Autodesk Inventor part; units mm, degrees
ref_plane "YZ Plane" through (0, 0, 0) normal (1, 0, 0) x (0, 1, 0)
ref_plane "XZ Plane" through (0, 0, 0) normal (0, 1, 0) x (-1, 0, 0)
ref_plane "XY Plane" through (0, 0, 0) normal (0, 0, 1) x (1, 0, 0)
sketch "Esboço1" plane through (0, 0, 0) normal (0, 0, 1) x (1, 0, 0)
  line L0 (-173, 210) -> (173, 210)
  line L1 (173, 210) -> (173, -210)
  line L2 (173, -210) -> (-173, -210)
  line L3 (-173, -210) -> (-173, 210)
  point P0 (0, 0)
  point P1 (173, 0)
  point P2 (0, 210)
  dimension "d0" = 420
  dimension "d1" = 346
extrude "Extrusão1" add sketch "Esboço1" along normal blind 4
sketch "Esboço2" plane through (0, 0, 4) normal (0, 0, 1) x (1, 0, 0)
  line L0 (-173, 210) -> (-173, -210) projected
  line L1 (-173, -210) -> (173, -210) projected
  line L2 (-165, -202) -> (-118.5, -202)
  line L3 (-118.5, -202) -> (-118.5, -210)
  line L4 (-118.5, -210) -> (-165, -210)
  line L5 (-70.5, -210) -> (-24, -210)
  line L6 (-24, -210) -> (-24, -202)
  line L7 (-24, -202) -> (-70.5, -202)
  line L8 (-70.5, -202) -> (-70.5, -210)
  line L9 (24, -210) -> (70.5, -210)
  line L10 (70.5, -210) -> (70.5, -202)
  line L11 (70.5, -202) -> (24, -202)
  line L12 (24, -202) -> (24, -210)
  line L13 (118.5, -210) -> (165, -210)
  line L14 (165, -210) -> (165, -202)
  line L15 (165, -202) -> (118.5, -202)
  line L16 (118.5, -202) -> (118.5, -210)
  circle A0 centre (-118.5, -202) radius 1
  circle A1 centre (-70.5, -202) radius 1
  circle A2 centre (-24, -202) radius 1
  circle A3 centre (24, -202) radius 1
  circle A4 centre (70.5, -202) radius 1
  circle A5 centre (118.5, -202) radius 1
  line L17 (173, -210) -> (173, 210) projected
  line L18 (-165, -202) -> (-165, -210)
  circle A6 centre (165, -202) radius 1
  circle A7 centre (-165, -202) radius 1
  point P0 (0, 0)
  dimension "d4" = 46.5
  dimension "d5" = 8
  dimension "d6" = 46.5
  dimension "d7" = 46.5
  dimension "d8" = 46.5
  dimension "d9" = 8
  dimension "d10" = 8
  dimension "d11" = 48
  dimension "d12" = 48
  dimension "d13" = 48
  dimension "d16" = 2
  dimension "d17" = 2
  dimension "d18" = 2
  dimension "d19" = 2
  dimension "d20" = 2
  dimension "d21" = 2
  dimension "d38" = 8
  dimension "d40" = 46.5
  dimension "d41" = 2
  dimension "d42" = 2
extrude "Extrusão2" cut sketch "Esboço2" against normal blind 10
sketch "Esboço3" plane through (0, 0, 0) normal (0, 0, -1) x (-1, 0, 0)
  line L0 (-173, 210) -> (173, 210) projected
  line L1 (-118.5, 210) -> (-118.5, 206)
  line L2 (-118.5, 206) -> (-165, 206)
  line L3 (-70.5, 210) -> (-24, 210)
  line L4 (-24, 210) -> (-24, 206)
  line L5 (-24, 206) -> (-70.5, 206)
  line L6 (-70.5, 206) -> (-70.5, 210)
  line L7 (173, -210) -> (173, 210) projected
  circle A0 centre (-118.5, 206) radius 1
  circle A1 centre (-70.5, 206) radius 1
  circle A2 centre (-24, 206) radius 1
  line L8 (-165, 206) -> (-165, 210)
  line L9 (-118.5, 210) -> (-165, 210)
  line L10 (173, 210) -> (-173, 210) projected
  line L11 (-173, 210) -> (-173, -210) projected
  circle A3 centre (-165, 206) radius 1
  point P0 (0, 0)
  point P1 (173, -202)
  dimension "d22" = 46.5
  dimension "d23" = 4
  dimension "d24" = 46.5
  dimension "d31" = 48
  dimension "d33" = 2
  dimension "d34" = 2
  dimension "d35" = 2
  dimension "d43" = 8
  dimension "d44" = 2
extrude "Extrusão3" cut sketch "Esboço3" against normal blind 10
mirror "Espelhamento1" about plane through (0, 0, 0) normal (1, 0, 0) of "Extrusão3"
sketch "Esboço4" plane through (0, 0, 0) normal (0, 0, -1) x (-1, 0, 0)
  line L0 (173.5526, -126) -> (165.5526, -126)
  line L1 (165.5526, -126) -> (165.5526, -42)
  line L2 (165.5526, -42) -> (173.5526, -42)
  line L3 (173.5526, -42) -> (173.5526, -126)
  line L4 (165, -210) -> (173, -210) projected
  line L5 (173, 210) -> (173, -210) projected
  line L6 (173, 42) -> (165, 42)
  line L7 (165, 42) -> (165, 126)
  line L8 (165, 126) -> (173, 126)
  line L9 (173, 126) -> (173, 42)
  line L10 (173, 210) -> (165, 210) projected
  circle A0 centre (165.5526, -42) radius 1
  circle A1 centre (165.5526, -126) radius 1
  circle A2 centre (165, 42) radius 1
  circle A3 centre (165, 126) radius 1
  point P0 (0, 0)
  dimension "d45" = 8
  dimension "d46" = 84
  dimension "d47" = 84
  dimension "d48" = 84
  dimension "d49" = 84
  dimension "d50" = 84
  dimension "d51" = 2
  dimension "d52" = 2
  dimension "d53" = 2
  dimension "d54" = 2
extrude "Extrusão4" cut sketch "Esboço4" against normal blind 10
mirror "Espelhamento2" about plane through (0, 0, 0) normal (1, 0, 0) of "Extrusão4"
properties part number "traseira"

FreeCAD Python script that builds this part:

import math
import FreeCAD as App
import Part
import Sketcher
from FreeCAD import Vector
Q = App.Units.Quantity

doc = App.newDocument("Part")
body = doc.addObject("PartDesign::Body", "Body")

# Sketch on XY plane
sketch1 = doc.addObject("Sketcher::SketchObject", "Sketch")
body.addObject(sketch1)
sketch1.AttachmentSupport = (doc.XY_Plane, [""])
sketch1.MapMode = "FlatFace"
sketch1.addGeometry(Part.LineSegment(Vector(173, 210, 0), Vector(-173, 210, 0)), False)
sketch1.addGeometry(Part.LineSegment(Vector(-173, 210, 0), Vector(-173, -210, 0)), False)
sketch1.addGeometry(Part.LineSegment(Vector(-173, -210, 0), Vector(173, -210, 0)), False)
sketch1.addGeometry(Part.LineSegment(Vector(173, -210, 0), Vector(173, 210, 0)), False)
sketch1.addConstraint(Sketcher.Constraint("Coincident", 0, 2, 1, 1))
sketch1.addConstraint(Sketcher.Constraint("Coincident", 1, 2, 2, 1))
sketch1.addConstraint(Sketcher.Constraint("Coincident", 2, 2, 3, 1))
sketch1.addConstraint(Sketcher.Constraint("Coincident", 3, 2, 0, 1))
sketch1.addConstraint(Sketcher.Constraint("Horizontal", 0))
sketch1.addConstraint(Sketcher.Constraint("Vertical", 1))
sketch1.addConstraint(Sketcher.Constraint("Horizontal", 2))
sketch1.addConstraint(Sketcher.Constraint("Vertical", 3))
sketch1.addConstraint(Sketcher.Constraint("Symmetric", 0, 2, 2, 2, -1, 1))
sketch1.addConstraint(Sketcher.Constraint("DistanceX", 0, 2, 0, 1, Q("346 mm")))
sketch1.addConstraint(Sketcher.Constraint("DistanceY", 1, 2, 1, 1, Q("420 mm")))
pad1 = doc.addObject("PartDesign::Pad", "Pad")
body.addObject(pad1)
pad1.Profile = sketch1
pad1.Length = 4

# Sketch on XY plane
sketch2 = doc.addObject("Sketcher::SketchObject", "Sketch001")
body.addObject(sketch2)
sketch2.AttachmentSupport = (doc.XY_Plane, [""])
sketch2.MapMode = "FlatFace"
sketch2.AttachmentOffset = App.Placement(Vector(0, 0, 4), App.Rotation())
sketch2.addGeometry(Part.LineSegment(Vector(-165, -203, 0), Vector(-165, -210, 0)), False)
sketch2.addGeometry(Part.LineSegment(Vector(-165, -210, 0), Vector(-118.5, -210, 0)), False)
sketch2.addGeometry(Part.LineSegment(Vector(-118.5, -210, 0), Vector(-118.5, -203, 0)), False)
sketch2.addGeometry(Part.ArcOfCircle(Part.Circle(Vector(-118.5, -202, 0), Vector(0, 0, 1), 1), math.radians(-90), math.radians(180)), False)
sketch2.addGeometry(Part.LineSegment(Vector(-119.5, -202, 0), Vector(-164, -202, 0)), False)
sketch2.addGeometry(Part.ArcOfCircle(Part.Circle(Vector(-165, -202, 0), Vector(0, 0, 1), 1), math.radians(0), math.radians(270)), False)
sketch2.addGeometry(Part.LineSegment(Vector(118.5, -203, 0), Vector(118.5, -210, 0)), False)
sketch2.addGeometry(Part.LineSegment(Vector(118.5, -210, 0), Vector(165, -210, 0)), False)
sketch2.addGeometry(Part.LineSegment(Vector(165, -210, 0), Vector(165, -203, 0)), False)
sketch2.addGeometry(Part.ArcOfCircle(Part.Circle(Vector(165, -202, 0), Vector(0, 0, 1), 1), math.radians(-90), math.radians(180)), False)
sketch2.addGeometry(Part.LineSegment(Vector(164, -202, 0), Vector(119.5, -202, 0)), False)
sketch2.addGeometry(Part.ArcOfCircle(Part.Circle(Vector(118.5, -202, 0), Vector(0, 0, 1), 1), math.radians(0), math.radians(270)), False)
sketch2.addGeometry(Part.LineSegment(Vector(24, -203, 0), Vector(24, -210, 0)), False)
sketch2.addGeometry(Part.LineSegment(Vector(24, -210, 0), Vector(70.5, -210, 0)), False)
sketch2.addGeometry(Part.LineSegment(Vector(70.5, -210, 0), Vector(70.5, -203, 0)), False)
sketch2.addGeometry(Part.ArcOfCircle(Part.Circle(Vector(70.5, -202, 0), Vector(0, 0, 1), 1), math.radians(-90), math.radians(180)), False)
sketch2.addGeometry(Part.LineSegment(Vector(69.5, -202, 0), Vector(25, -202, 0)), False)
sketch2.addGeometry(Part.ArcOfCircle(Part.Circle(Vector(24, -202, 0), Vector(0, 0, 1), 1), math.radians(0), math.radians(270)), False)
sketch2.addGeometry(Part.LineSegment(Vector(-70.5, -203, 0), Vector(-70.5, -210, 0)), False)
sketch2.addGeometry(Part.LineSegment(Vector(-70.5, -210, 0), Vector(-24, -210, 0)), False)
sketch2.addGeometry(Part.LineSegment(Vector(-24, -210, 0), Vector(-24, -203, 0)), False)
sketch2.addGeometry(Part.ArcOfCircle(Part.Circle(Vector(-24, -202, 0), Vector(0, 0, 1), 1), math.radians(-90), math.radians(180)), False)
sketch2.addGeometry(Part.LineSegment(Vector(-25, -202, 0), Vector(-69.5, -202, 0)), False)
sketch2.addGeometry(Part.ArcOfCircle(Part.Circle(Vector(-70.5, -202, 0), Vector(0, 0, 1), 1), math.radians(0), math.radians(270)), False)
sketch2.addConstraint(Sketcher.Constraint("Coincident", 0, 2, 1, 1))
sketch2.addConstraint(Sketcher.Constraint("Coincident", 1, 2, 2, 1))
sketch2.addConstraint(Sketcher.Constraint("Coincident", 2, 2, 3, 1))
sketch2.addConstraint(Sketcher.Constraint("Coincident", 3, 2, 4, 1))
sketch2.addConstraint(Sketcher.Constraint("Coincident", 4, 2, 5, 1))
sketch2.addConstraint(Sketcher.Constraint("Coincident", 5, 2, 0, 1))
sketch2.addConstraint(Sketcher.Constraint("Coincident", 6, 2, 7, 1))
sketch2.addConstraint(Sketcher.Constraint("Coincident", 7, 2, 8, 1))
sketch2.addConstraint(Sketcher.Constraint("Coincident", 8, 2, 9, 1))
sketch2.addConstraint(Sketcher.Constraint("Coincident", 9, 2, 10, 1))
sketch2.addConstraint(Sketcher.Constraint("Coincident", 10, 2, 11, 1))
sketch2.addConstraint(Sketcher.Constraint("Coincident", 11, 2, 6, 1))
sketch2.addConstraint(Sketcher.Constraint("Coincident", 12, 2, 13, 1))
sketch2.addConstraint(Sketcher.Constraint("Coincident", 13, 2, 14, 1))
sketch2.addConstraint(Sketcher.Constraint("Coincident", 14, 2, 15, 1))
sketch2.addConstraint(Sketcher.Constraint("Coincident", 15, 2, 16, 1))
sketch2.addConstraint(Sketcher.Constraint("Coincident", 16, 2, 17, 1))
sketch2.addConstraint(Sketcher.Constraint("Coincident", 17, 2, 12, 1))
sketch2.addConstraint(Sketcher.Constraint("Coincident", 18, 2, 19, 1))
sketch2.addConstraint(Sketcher.Constraint("Coincident", 19, 2, 20, 1))
sketch2.addConstraint(Sketcher.Constraint("Coincident", 20, 2, 21, 1))
sketch2.addConstraint(Sketcher.Constraint("Coincident", 21, 2, 22, 1))
sketch2.addConstraint(Sketcher.Constraint("Coincident", 22, 2, 23, 1))
sketch2.addConstraint(Sketcher.Constraint("Coincident", 23, 2, 18, 1))
sketch2.addConstraint(Sketcher.Constraint("Vertical", 0))
sketch2.addConstraint(Sketcher.Constraint("Horizontal", 1))
sketch2.addConstraint(Sketcher.Constraint("Vertical", 2))
sketch2.addConstraint(Sketcher.Constraint("Horizontal", 4))
sketch2.addConstraint(Sketcher.Constraint("Vertical", 6))
sketch2.addConstraint(Sketcher.Constraint("Horizontal", 7))
sketch2.addConstraint(Sketcher.Constraint("Vertical", 8))
sketch2.addConstraint(Sketcher.Constraint("Horizontal", 10))
sketch2.addConstraint(Sketcher.Constraint("Vertical", 12))
sketch2.addConstraint(Sketcher.Constraint("Horizontal", 13))
sketch2.addConstraint(Sketcher.Constraint("Vertical", 14))
sketch2.addConstraint(Sketcher.Constraint("Horizontal", 16))
sketch2.addConstraint(Sketcher.Constraint("Vertical", 18))
sketch2.addConstraint(Sketcher.Constraint("Horizontal", 19))
sketch2.addConstraint(Sketcher.Constraint("Vertical", 20))
sketch2.addConstraint(Sketcher.Constraint("Horizontal", 22))
sketch2.addConstraint(Sketcher.Constraint("Equal", 3, 5))
sketch2.addConstraint(Sketcher.Constraint("Equal", 5, 9))
sketch2.addConstraint(Sketcher.Constraint("Equal", 9, 11))
sketch2.addConstraint(Sketcher.Constraint("Equal", 11, 15))
sketch2.addConstraint(Sketcher.Constraint("Equal", 15, 17))
sketch2.addConstraint(Sketcher.Constraint("Equal", 17, 21))
sketch2.addConstraint(Sketcher.Constraint("Equal", 21, 23))
sketch2.addConstraint(Sketcher.Constraint("Symmetric", 5, 3, 9, 3, -2))
sketch2.addConstraint(Sketcher.Constraint("Symmetric", 3, 3, 11, 3, -2))
sketch2.addConstraint(Sketcher.Constraint("Symmetric", 17, 3, 21, 3, -2))
sketch2.addConstraint(Sketcher.Constraint("Symmetric", 15, 3, 23, 3, -2))
sketch2.addConstraint(Sketcher.Constraint("Symmetric", 1, 2, 6, 2, -2))
sketch2.addConstraint(Sketcher.Constraint("Symmetric", 13, 2, 18, 2, -2))
sketch2.addConstraint(Sketcher.Constraint("Horizontal", 3, 3, 5, 3))
sketch2.addConstraint(Sketcher.Constraint("Horizontal", 11, 3, 15, 3))
sketch2.addConstraint(Sketcher.Constraint("Horizontal", 15, 3, 17, 3))
sketch2.addConstraint(Sketcher.Constraint("Horizontal", 23, 3, 3, 2))
sketch2.addConstraint(Sketcher.Constraint("Horizontal", 4, 2, 9, 2))
sketch2.addConstraint(Sketcher.Constraint("Horizontal", 7, 2, 12, 2))
sketch2.addConstraint(Sketcher.Constraint("Horizontal", 10, 2, 15, 2))
sketch2.addConstraint(Sketcher.Constraint("Horizontal", 16, 2, 21, 2))
sketch2.addConstraint(Sketcher.Constraint("Vertical", 5, 3, 0, 2))
sketch2.addConstraint(Sketcher.Constraint("Vertical", 3, 3, 1, 2))
sketch2.addConstraint(Sketcher.Constraint("Vertical", 9, 3, 7, 2))
sketch2.addConstraint(Sketcher.Constraint("Vertical", 17, 3, 12, 2))
sketch2.addConstraint(Sketcher.Constraint("Vertical", 15, 3, 13, 2))
sketch2.addConstraint(Sketcher.Constraint("Vertical", 21, 3, 19, 2))
sketch2.addConstraint(Sketcher.Constraint("Equal", 7, 13))
sketch2.addConstraint(Sketcher.Constraint("Radius", 3, Q("1 mm")))
sketch2.addConstraint(Sketcher.Constraint("DistanceX", 1, 1, 1, 2, Q("46.5 mm")))
sketch2.addConstraint(Sketcher.Constraint("DistanceX", 15, 3, 11, 3, Q("48 mm")))
sketch2.addConstraint(Sketcher.Constraint("DistanceX", 21, 3, 17, 3, Q("48 mm")))
sketch2.addConstraint(Sketcher.Constraint("DistanceY", 0, 2, 5, 3, Q("8 mm")))
sketch2.addConstraint(Sketcher.Constraint("DistanceY", 3, 3, -1, 1, Q("202 mm")))
pocket1 = doc.addObject("PartDesign::Pocket", "Pocket")
body.addObject(pocket1)
pocket1.Profile = sketch2
pocket1.Length = 10

# Sketch on XY plane
sketch3 = doc.addObject("Sketcher::SketchObject", "Sketch002")
body.addObject(sketch3)
sketch3.AttachmentSupport = (doc.XY_Plane, [""])
sketch3.MapMode = "FlatFace"
sketch3.addGeometry(Part.LineSegment(Vector(24, 210, 0), Vector(70.5, 210, 0)), False)
sketch3.addGeometry(Part.LineSegment(Vector(70.5, 210, 0), Vector(70.5, 207, 0)), False)
sketch3.addGeometry(Part.ArcOfCircle(Part.Circle(Vector(70.5, 206, 0), Vector(0, 0, 1), 1), math.radians(180), math.radians(450)), False)
sketch3.addGeometry(Part.LineSegment(Vector(69.5, 206, 0), Vector(25, 206, 0)), False)
sketch3.addGeometry(Part.ArcOfCircle(Part.Circle(Vector(24, 206, 0), Vector(0, 0, 1), 1), math.radians(90), math.radians(360)), False)
sketch3.addGeometry(Part.LineSegment(Vector(24, 207, 0), Vector(24, 210, 0)), False)
sketch3.addGeometry(Part.LineSegment(Vector(118.5, 210, 0), Vector(165, 210, 0)), False)
sketch3.addGeometry(Part.LineSegment(Vector(165, 210, 0), Vector(165, 207, 0)), False)
sketch3.addGeometry(Part.ArcOfCircle(Part.Circle(Vector(165, 206, 0), Vector(0, 0, 1), 1), math.radians(180), math.radians(450)), False)
sketch3.addGeometry(Part.LineSegment(Vector(164, 206, 0), Vector(119.5, 206, 0)), False)
sketch3.addGeometry(Part.ArcOfCircle(Part.Circle(Vector(118.5, 206, 0), Vector(0, 0, 1), 1), math.radians(90), math.radians(360)), False)
sketch3.addGeometry(Part.LineSegment(Vector(118.5, 207, 0), Vector(118.5, 210, 0)), False)
sketch3.addConstraint(Sketcher.Constraint("Coincident", 0, 2, 1, 1))
sketch3.addConstraint(Sketcher.Constraint("Coincident", 1, 2, 2, 2))
sketch3.addConstraint(Sketcher.Constraint("Coincident", 2, 1, 3, 1))
sketch3.addConstraint(Sketcher.Constraint("Coincident", 3, 2, 4, 2))
sketch3.addConstraint(Sketcher.Constraint("Coincident", 4, 1, 5, 1))
sketch3.addConstraint(Sketcher.Constraint("Coincident", 5, 2, 0, 1))
sketch3.addConstraint(Sketcher.Constraint("Coincident", 6, 2, 7, 1))
sketch3.addConstraint(Sketcher.Constraint("Coincident", 7, 2, 8, 2))
sketch3.addConstraint(Sketcher.Constraint("Coincident", 8, 1, 9, 1))
sketch3.addConstraint(Sketcher.Constraint("Coincident", 9, 2, 10, 2))
sketch3.addConstraint(Sketcher.Constraint("Coincident", 10, 1, 11, 1))
sketch3.addConstraint(Sketcher.Constraint("Coincident", 11, 2, 6, 1))
sketch3.addConstraint(Sketcher.Constraint("Horizontal", 0))
sketch3.addConstraint(Sketcher.Constraint("Vertical", 1))
sketch3.addConstraint(Sketcher.Constraint("Horizontal", 3))
sketch3.addConstraint(Sketcher.Constraint("Vertical", 5))
sketch3.addConstraint(Sketcher.Constraint("Horizontal", 6))
sketch3.addConstraint(Sketcher.Constraint("Vertical", 7))
sketch3.addConstraint(Sketcher.Constraint("Horizontal", 9))
sketch3.addConstraint(Sketcher.Constraint("Vertical", 11))
sketch3.addConstraint(Sketcher.Constraint("Equal", 2, 4))
sketch3.addConstraint(Sketcher.Constraint("Equal", 4, 8))
sketch3.addConstraint(Sketcher.Constraint("Equal", 8, 10))
sketch3.addConstraint(Sketcher.Constraint("Horizontal", 2, 3, 4, 3))
sketch3.addConstraint(Sketcher.Constraint("Horizontal", 4, 3, 8, 3))
sketch3.addConstraint(Sketcher.Constraint("Horizontal", 8, 3, 10, 3))
sketch3.addConstraint(Sketcher.Constraint("Horizontal", 10, 3, 2, 1))
sketch3.addConstraint(Sketcher.Constraint("Horizontal", 5, 2, 6, 2))
sketch3.addConstraint(Sketcher.Constraint("Horizontal", 3, 2, 8, 1))
sketch3.addConstraint(Sketcher.Constraint("Vertical", 2, 3, 0, 2))
sketch3.addConstraint(Sketcher.Constraint("Vertical", 8, 3, 6, 2))
sketch3.addConstraint(Sketcher.Constraint("Equal", 0, 6))
sketch3.addConstraint(Sketcher.Constraint("Equal", 3, 9))
sketch3.addConstraint(Sketcher.Constraint("Radius", 2, Q("1 mm")))
sketch3.addConstraint(Sketcher.Constraint("DistanceX", 0, 1, 0, 2, Q("46.5 mm")))
sketch3.addConstraint(Sketcher.Constraint("DistanceX", 2, 3, 10, 3, Q("48 mm")))
sketch3.addConstraint(Sketcher.Constraint("DistanceY", 2, 3, 0, 2, Q("4 mm")))
sketch3.addConstraint(Sketcher.Constraint("DistanceX", 4, 3, 2, 3, Q("46.5 mm")))
sketch3.addConstraint(Sketcher.Constraint("DistanceY", -1, 1, 2, 3, Q("206 mm")))
sketch3.addConstraint(Sketcher.Constraint("DistanceX", -1, 1, 4, 3, Q("24 mm")))
pocket2 = doc.addObject("PartDesign::Pocket", "Pocket001")
body.addObject(pocket2)
pocket2.Profile = sketch3
pocket2.Length = 10
pocket2.Reversed = True
doc.recompute()

mirrored = doc.addObject("PartDesign::Mirrored", "Mirrored")
body.addObject(mirrored)
mirrored.Originals = [pocket2]
mirrored.MirrorPlane = (doc.YZ_Plane, [""])
body.Tip = mirrored

# Sketch on XY plane
sketch4 = doc.addObject("Sketcher::SketchObject", "Sketch003")
body.addObject(sketch4)
sketch4.AttachmentSupport = (doc.XY_Plane, [""])
sketch4.MapMode = "FlatFace"
sketch4.addGeometry(Part.ArcOfCircle(Part.Circle(Vector(-165.6, -126, 0), Vector(0, 0, 1), 1), math.radians(180), math.radians(450)), False)
sketch4.addGeometry(Part.LineSegment(Vector(-166.6, -126, 0), Vector(-173.6, -126, 0)), False)
sketch4.addGeometry(Part.LineSegment(Vector(-173.6, -126, 0), Vector(-173.6, -42, 0)), False)
sketch4.addGeometry(Part.LineSegment(Vector(-173.6, -42, 0), Vector(-166.6, -42, 0)), False)
sketch4.addGeometry(Part.ArcOfCircle(Part.Circle(Vector(-165.6, -42, 0), Vector(0, 0, 1), 1), math.radians(-90), math.radians(180)), False)
sketch4.addGeometry(Part.LineSegment(Vector(-165.6, -43, 0), Vector(-165.6, -125, 0)), False)
sketch4.addGeometry(Part.LineSegment(Vector(-166, 42, 0), Vector(-173, 42, 0)), False)
sketch4.addGeometry(Part.LineSegment(Vector(-173, 42, 0), Vector(-173, 126, 0)), False)
sketch4.addGeometry(Part.LineSegment(Vector(-173, 126, 0), Vector(-166, 126, 0)), False)
sketch4.addGeometry(Part.ArcOfCircle(Part.Circle(Vector(-165, 126, 0), Vector(0, 0, 1), 1), math.radians(-90), math.radians(180)), False)
sketch4.addGeometry(Part.LineSegment(Vector(-165, 125, 0), Vector(-165, 43, 0)), False)
sketch4.addGeometry(Part.ArcOfCircle(Part.Circle(Vector(-165, 42, 0), Vector(0, 0, 1), 1), math.radians(180), math.radians(450)), False)
sketch4.addConstraint(Sketcher.Constraint("Coincident", 0, 1, 1, 1))
sketch4.addConstraint(Sketcher.Constraint("Coincident", 1, 2, 2, 1))
sketch4.addConstraint(Sketcher.Constraint("Coincident", 2, 2, 3, 1))
sketch4.addConstraint(Sketcher.Constraint("Coincident", 3, 2, 4, 2))
sketch4.addConstraint(Sketcher.Constraint("Coincident", 4, 1, 5, 1))
sketch4.addConstraint(Sketcher.Constraint("Coincident", 5, 2, 0, 2))
sketch4.addConstraint(Sketcher.Constraint("Coincident", 6, 2, 7, 1))
sketch4.addConstraint(Sketcher.Constraint("Coincident", 7, 2, 8, 1))
sketch4.addConstraint(Sketcher.Constraint("Coincident", 8, 2, 9, 2))
sketch4.addConstraint(Sketcher.Constraint("Coincident", 9, 1, 10, 1))
sketch4.addConstraint(Sketcher.Constraint("Coincident", 10, 2, 11, 2))
sketch4.addConstraint(Sketcher.Constraint("Coincident", 11, 1, 6, 1))
sketch4.addConstraint(Sketcher.Constraint("Horizontal", 1))
sketch4.addConstraint(Sketcher.Constraint("Vertical", 2))
sketch4.addConstraint(Sketcher.Constraint("Horizontal", 3))
sketch4.addConstraint(Sketcher.Constraint("Vertical", 5))
sketch4.addConstraint(Sketcher.Constraint("Horizontal", 6))
sketch4.addConstraint(Sketcher.Constraint("Vertical", 7))
sketch4.addConstraint(Sketcher.Constraint("Horizontal", 8))
sketch4.addConstraint(Sketcher.Constraint("Vertical", 10))
sketch4.addConstraint(Sketcher.Constraint("Equal", 0, 4))
sketch4.addConstraint(Sketcher.Constraint("Equal", 4, 9))
sketch4.addConstraint(Sketcher.Constraint("Equal", 9, 11))
sketch4.addConstraint(Sketcher.Constraint("Horizontal", 4, 3, 2, 2))
sketch4.addConstraint(Sketcher.Constraint("Horizontal", 11, 3, 6, 2))
sketch4.addConstraint(Sketcher.Constraint("Horizontal", 9, 3, 7, 2))
sketch4.addConstraint(Sketcher.Constraint("Vertical", 0, 3, 4, 3))
sketch4.addConstraint(Sketcher.Constraint("Vertical", 9, 3, 11, 3))
sketch4.addConstraint(Sketcher.Constraint("Vertical", 0, 3, 4, 1))
sketch4.addConstraint(Sketcher.Constraint("Vertical", 11, 3, 9, 1))
sketch4.addConstraint(Sketcher.Constraint("Equal", 3, 6))
sketch4.addConstraint(Sketcher.Constraint("Equal", 2, 7))
sketch4.addConstraint(Sketcher.Constraint("Equal", 5, 10))
sketch4.addConstraint(Sketcher.Constraint("Radius", 0, Q("1 mm")))
sketch4.addConstraint(Sketcher.Constraint("DistanceY", 2, 1, 2, 2, Q("84 mm")))
sketch4.addConstraint(Sketcher.Constraint("DistanceY", 4, 3, 11, 3, Q("84 mm")))
sketch4.addConstraint(Sketcher.Constraint("DistanceX", 1, 2, 0, 3, Q("8 mm")))
sketch4.addConstraint(Sketcher.Constraint("DistanceY", 0, 3, -1, 1, Q("126 mm")))
sketch4.addConstraint(Sketcher.Constraint("DistanceX", 9, 3, -1, 1, Q("165 mm")))
sketch4.addConstraint(Sketcher.Constraint("DistanceX", 0, 3, -1, 1, Q("165.5526 mm")))
pocket3 = doc.addObject("PartDesign::Pocket", "Pocket002")
body.addObject(pocket3)
pocket3.Profile = sketch4
pocket3.Length = 10
pocket3.Reversed = True
doc.recompute()

mirrored2 = doc.addObject("PartDesign::Mirrored", "Mirrored001")
body.addObject(mirrored2)
mirrored2.Originals = [pocket3]
mirrored2.MirrorPlane = (doc.YZ_Plane, [""])
body.Tip = mirrored2

doc.recompute()
